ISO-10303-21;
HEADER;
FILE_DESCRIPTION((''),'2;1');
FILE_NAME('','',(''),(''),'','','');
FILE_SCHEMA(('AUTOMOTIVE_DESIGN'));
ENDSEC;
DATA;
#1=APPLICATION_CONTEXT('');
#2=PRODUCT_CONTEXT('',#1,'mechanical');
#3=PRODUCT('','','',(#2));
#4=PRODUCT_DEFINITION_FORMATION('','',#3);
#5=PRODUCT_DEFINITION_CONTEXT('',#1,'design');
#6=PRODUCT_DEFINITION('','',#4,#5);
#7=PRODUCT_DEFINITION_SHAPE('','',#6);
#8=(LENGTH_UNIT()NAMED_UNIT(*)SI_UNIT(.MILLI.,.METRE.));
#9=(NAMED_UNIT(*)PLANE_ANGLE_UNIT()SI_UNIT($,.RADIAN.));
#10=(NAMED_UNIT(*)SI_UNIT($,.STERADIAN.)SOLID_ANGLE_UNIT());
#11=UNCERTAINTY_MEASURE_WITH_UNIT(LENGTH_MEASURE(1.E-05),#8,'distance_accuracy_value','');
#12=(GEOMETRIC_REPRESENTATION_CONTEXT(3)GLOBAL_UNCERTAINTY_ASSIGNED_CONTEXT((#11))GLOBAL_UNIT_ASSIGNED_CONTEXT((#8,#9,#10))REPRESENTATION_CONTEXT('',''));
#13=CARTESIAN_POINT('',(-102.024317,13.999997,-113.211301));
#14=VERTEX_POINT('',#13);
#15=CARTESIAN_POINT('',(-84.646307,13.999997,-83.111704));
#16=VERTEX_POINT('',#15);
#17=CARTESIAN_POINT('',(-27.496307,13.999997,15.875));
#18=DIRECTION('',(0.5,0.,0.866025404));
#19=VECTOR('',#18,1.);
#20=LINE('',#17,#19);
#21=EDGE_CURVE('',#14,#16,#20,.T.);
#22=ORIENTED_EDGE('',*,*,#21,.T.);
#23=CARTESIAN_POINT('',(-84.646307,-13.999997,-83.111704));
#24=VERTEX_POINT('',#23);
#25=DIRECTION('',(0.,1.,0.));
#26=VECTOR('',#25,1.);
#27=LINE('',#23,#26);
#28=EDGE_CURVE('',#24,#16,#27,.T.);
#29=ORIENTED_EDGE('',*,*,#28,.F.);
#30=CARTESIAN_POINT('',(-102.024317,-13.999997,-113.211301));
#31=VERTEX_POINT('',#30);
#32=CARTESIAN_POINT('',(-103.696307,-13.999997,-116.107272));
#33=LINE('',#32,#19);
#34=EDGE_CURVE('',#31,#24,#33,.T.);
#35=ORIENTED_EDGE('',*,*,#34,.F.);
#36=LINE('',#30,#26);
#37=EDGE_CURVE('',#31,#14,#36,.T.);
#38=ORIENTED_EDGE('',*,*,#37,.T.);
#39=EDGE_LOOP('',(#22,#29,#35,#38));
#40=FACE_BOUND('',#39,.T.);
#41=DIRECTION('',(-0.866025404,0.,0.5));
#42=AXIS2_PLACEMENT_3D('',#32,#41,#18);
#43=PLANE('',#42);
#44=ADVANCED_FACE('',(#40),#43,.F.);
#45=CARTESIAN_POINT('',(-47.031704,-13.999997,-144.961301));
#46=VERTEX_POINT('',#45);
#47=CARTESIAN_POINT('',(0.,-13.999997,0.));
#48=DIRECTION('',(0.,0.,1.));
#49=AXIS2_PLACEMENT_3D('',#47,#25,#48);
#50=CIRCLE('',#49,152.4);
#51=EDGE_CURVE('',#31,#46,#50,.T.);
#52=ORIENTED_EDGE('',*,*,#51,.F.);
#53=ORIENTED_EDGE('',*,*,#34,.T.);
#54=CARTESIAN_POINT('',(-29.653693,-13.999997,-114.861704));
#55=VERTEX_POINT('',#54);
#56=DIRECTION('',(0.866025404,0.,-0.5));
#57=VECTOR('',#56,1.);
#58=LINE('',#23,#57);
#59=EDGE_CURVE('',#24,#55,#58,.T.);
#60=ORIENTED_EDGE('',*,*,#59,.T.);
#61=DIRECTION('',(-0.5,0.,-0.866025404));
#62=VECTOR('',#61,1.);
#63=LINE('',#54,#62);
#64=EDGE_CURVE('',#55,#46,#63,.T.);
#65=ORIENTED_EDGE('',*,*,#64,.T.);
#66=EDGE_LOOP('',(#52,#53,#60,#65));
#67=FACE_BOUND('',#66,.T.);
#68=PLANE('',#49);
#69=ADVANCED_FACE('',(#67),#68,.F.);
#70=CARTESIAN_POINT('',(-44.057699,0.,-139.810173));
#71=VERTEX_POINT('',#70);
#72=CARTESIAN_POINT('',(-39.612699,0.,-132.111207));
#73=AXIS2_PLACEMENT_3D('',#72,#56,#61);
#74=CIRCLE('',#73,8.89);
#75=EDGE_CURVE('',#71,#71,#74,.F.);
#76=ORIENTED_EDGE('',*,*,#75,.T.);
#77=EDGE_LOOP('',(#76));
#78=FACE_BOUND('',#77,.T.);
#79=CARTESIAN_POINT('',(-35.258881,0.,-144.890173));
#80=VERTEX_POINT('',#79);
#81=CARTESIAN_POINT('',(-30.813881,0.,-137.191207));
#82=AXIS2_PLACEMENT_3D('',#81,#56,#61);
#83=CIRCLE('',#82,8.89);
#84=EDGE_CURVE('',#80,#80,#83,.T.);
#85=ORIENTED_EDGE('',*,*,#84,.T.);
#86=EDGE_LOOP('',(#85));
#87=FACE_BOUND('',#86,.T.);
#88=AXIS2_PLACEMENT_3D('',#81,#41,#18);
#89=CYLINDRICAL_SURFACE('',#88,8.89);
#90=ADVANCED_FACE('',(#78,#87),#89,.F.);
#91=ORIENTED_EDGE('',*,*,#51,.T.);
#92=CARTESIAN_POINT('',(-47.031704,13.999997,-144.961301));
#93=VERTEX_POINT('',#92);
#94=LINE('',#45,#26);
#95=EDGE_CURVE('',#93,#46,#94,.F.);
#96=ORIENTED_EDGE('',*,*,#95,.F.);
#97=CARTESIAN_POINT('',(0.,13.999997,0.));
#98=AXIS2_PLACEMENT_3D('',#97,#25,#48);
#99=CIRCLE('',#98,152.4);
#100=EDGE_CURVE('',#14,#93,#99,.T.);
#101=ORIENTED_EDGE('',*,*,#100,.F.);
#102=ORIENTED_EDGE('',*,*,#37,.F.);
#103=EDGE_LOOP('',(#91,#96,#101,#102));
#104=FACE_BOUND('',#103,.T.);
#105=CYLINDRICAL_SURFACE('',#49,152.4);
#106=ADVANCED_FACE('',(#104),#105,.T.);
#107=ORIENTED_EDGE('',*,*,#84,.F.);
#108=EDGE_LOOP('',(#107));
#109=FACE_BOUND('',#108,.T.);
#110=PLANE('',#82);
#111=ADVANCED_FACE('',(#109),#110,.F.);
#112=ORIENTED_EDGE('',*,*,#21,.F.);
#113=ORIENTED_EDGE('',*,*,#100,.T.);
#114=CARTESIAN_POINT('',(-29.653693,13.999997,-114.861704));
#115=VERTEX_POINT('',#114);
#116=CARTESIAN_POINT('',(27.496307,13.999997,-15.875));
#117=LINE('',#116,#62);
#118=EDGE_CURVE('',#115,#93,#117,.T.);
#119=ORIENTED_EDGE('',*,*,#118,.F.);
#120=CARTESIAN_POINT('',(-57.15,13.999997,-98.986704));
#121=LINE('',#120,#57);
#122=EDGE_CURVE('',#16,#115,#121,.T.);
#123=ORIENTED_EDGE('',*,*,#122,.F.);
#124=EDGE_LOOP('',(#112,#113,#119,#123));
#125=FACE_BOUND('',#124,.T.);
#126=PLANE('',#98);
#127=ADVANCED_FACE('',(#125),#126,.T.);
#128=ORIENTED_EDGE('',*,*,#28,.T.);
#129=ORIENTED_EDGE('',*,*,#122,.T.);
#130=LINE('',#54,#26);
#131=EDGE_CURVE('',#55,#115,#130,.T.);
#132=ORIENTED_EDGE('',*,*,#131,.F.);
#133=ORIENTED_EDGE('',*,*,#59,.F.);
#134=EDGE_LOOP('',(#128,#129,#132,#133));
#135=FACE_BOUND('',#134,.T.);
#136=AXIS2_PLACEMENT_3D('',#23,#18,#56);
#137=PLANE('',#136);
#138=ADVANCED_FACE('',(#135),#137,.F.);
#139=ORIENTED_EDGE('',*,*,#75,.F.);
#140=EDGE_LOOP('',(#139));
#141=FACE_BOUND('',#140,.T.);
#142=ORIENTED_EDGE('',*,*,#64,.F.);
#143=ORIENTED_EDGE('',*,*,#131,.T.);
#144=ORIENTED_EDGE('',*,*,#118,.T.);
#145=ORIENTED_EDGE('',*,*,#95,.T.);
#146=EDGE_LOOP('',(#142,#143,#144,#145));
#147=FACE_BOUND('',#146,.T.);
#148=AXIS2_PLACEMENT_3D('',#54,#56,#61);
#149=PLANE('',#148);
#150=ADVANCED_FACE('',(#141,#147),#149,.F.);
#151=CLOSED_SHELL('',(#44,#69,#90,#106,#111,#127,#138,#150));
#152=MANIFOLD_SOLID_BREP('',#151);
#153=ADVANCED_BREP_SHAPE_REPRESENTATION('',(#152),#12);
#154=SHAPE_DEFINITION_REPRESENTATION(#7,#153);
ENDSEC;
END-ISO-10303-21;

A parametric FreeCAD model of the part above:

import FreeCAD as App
import Part
import Sketcher
from FreeCAD import Vector
Q = App.Units.Quantity

doc = App.newDocument("Part")
body = doc.addObject("PartDesign::Body", "Body")

sketch1 = body.newObject("Sketcher::SketchObject", "Sketch")
sketch1.AttachmentSupport = (doc.getObject("XZ_Plane"), [""])
sketch1.MapMode = "FlatFace"
sketch1.addGeometry(Part.Circle(Vector(0, 0, 0), Vector(0, 0, 1), 152), False)
sketch1.addConstraint([
    Sketcher.Constraint("Coincident", 0, 3, -1, 1),
    Sketcher.Constraint("Diameter", 0, Q("12 in")),
])
pad1 = body.newObject("PartDesign::Pad", "Pad")
pad1.Profile = sketch1
pad1.Type = "TwoLengths"
pad1.Length = 13.999997
pad1.Length2 = 13.999997
pad1.Reversed = True

sketch2 = body.newObject("Sketcher::SketchObject", "Sketch001")
sketch2.AttachmentSupport = (doc.getObject("XZ_Plane"), [""])
sketch2.MapMode = "FlatFace"
sketch2.AttachmentOffset = App.Placement(Vector(0, 0, -13.999997), App.Rotation())
sketch2.addGeometry([
    Part.LineSegment(Vector(-49, -148, 0), Vector(-104, -116, 0)),
    Part.LineSegment(Vector(-104, -116, 0), Vector(-85, -83, 0)),
    Part.LineSegment(Vector(-85, -83, 0), Vector(-30, -115, 0)),
    Part.LineSegment(Vector(-30, -115, 0), Vector(-49, -148, 0)),
], False)
sketch2.addConstraint([
    Sketcher.Constraint("Coincident", 0, 2, 1, 1),
    Sketcher.Constraint("Coincident", 1, 2, 2, 1),
    Sketcher.Constraint("Coincident", 2, 2, 3, 1),
    Sketcher.Constraint("Coincident", 3, 2, 0, 1),
    Sketcher.Constraint("Perpendicular", 0, 1),
    Sketcher.Constraint("Perpendicular", 1, 2),
    Sketcher.Constraint("Perpendicular", 2, 3),
    Sketcher.Constraint("Angle", 0, Q("150 deg")),
    Sketcher.Constraint("Distance", 0, Q("2.5 in")),
    Sketcher.Constraint("Distance", 1, Q("1.5 in")),
    Sketcher.Constraint("DistanceY", 0, 2, -1, 1, Q("116.107272 mm")),
    Sketcher.Constraint("DistanceX", 0, 2, -1, 1, Q("103.696307 mm")),
])
pocket1 = body.newObject("PartDesign::Pocket", "Pocket")
pocket1.Profile = sketch2
pocket1.Type = "ThroughAll"
pocket1.Midplane = True

sketch3 = body.newObject("Sketcher::SketchObject", "Sketch002")
sketch3.Placement = App.Placement(Vector(0, 0, 0), App.Rotation(Vector(-0.5, 0, -0.866025404), Vector(0, 1, 0), Vector(0.866025404, 0, -0.5), "ZXY"))
sketch3.addGeometry(Part.Circle(Vector(134, 0, 0), Vector(0, 0, 1), 9), False)
sketch3.addConstraint([
    Sketcher.Constraint("PointOnObject", 0, 3, -1),
    Sketcher.Constraint("Diameter", 0, Q("0.7 in")),
    Sketcher.Constraint("DistanceX", -1, 1, 0, 3, Q("134.218011 mm")),
])
pocket2 = body.newObject("PartDesign::Pocket", "Pocket001")
pocket2.Profile = sketch3
pocket2.Length = Q("1.65 in")
pocket2.Reversed = True

doc.recompute()
